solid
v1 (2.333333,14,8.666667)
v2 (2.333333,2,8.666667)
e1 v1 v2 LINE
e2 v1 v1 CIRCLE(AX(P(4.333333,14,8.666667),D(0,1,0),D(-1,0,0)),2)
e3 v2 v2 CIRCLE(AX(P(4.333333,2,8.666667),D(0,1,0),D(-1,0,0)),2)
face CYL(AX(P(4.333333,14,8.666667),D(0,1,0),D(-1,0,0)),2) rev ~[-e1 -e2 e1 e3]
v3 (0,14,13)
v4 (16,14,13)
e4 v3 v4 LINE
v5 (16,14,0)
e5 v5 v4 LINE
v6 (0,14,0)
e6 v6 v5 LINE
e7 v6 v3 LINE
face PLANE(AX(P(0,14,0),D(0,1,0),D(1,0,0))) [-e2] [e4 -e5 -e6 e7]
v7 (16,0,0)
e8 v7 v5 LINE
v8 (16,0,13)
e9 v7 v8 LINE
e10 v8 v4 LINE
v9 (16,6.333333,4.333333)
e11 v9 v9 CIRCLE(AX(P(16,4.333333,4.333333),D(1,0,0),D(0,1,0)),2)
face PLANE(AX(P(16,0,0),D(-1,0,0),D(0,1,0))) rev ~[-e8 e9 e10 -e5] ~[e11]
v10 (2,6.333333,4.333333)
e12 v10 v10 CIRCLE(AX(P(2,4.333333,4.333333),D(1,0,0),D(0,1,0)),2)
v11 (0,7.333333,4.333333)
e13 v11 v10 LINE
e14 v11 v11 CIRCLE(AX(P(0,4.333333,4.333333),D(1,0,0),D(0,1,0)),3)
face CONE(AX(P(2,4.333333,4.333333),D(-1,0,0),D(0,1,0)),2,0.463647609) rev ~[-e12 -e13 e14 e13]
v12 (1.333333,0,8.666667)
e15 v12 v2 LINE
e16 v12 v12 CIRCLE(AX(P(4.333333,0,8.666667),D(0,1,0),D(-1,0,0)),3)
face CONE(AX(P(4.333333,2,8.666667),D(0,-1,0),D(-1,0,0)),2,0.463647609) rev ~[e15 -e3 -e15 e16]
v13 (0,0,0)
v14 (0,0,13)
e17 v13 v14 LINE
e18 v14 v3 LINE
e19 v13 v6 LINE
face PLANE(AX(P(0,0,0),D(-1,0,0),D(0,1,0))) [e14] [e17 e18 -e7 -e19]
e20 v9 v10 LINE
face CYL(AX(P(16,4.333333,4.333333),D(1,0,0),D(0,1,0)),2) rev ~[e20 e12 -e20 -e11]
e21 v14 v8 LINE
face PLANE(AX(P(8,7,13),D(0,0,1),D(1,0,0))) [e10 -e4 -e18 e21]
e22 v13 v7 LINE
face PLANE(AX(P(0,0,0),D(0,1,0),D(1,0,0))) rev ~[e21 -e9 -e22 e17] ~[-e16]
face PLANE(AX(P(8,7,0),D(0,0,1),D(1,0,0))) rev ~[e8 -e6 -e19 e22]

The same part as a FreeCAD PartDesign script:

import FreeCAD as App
import Part
import Sketcher
from FreeCAD import Vector


def edges_at(feature, points):
    """Names of the edges that pass closest to the given points."""
    edges = feature.Shape.Edges
    near = lambda p: min(range(len(edges)), key=lambda i: edges[i].distToShape(Part.Vertex(*p))[0])
    return sorted({f"Edge{near(p) + 1}" for p in points})


def add_polygon(sketch, points):
    """Adds a closed chain of lines whose ends are joined by coincident constraints."""
    first, n = sketch.GeometryCount, len(points)
    for a, b in zip(points, points[1:] + points[:1]):
        sketch.addGeometry(Part.LineSegment(App.Vector(*a, 0), App.Vector(*b, 0)), False)
    for i in range(n):
        sketch.addConstraint(Sketcher.Constraint("Coincident", first + i, 2, first + (i + 1) % n, 1))

doc = App.newDocument("Part")
body = doc.addObject("PartDesign::Body", "Body")

sketch1 = doc.addObject("Sketcher::SketchObject", "Sketch")
body.addObject(sketch1)
sketch1.AttachmentSupport = (doc.XY_Plane, [""])
sketch1.MapMode = "FlatFace"
add_polygon(sketch1, [(0, 14), (0, 0), (16, 0), (16, 14)])
sketch1.addConstraint([
    Sketcher.Constraint("Vertical", 0),
    Sketcher.Constraint("Horizontal", 1),
    Sketcher.Constraint("Vertical", 2),
    Sketcher.Constraint("Horizontal", 3),
    Sketcher.Constraint("Coincident", 0, 2, -1, 1),
    Sketcher.Constraint("DistanceX", 1, 1, 1, 2, 16.0),
    Sketcher.Constraint("DistanceY", 0, 2, 0, 1, 14.0),
])
pad1 = doc.addObject("PartDesign::Pad", "Pad")
body.addObject(pad1)
pad1.Profile = sketch1
pad1.Length = 13

sketch2 = doc.addObject("Sketcher::SketchObject", "Sketch001")
body.addObject(sketch2)
sketch2.AttachmentSupport = (doc.YZ_Plane, [""])
sketch2.MapMode = "FlatFace"
sketch2.AttachmentOffset = App.Placement(Vector(0, 0, 16), App.Rotation())
sketch2.addGeometry(Part.Circle(Vector(4.3, 4.3, 0), Vector(0, 0, 1), 2), False)
sketch2.addConstraint([
    Sketcher.Constraint("Diameter", 0, 4.0),
    Sketcher.Constraint("DistanceX", -1, 1, 0, 3, 4.333333),
    Sketcher.Constraint("DistanceY", -1, 1, 0, 3, 4.333333),
])
pocket1 = doc.addObject("PartDesign::Pocket", "Pocket")
body.addObject(pocket1)
pocket1.Profile = sketch2
pocket1.Type = "ThroughAll"

sketch3 = doc.addObject("Sketcher::SketchObject", "Sketch002")
body.addObject(sketch3)
sketch3.AttachmentSupport = (doc.XZ_Plane, [""])
sketch3.MapMode = "FlatFace"
sketch3.AttachmentOffset = App.Placement(Vector(0, 0, -14), App.Rotation())
sketch3.addGeometry(Part.Circle(Vector(4.3, 8.7, 0), Vector(0, 0, 1), 2), False)
sketch3.addConstraint([
    Sketcher.Constraint("Diameter", 0, 4.0),
    Sketcher.Constraint("DistanceX", -1, 1, 0, 3, 4.333333),
    Sketcher.Constraint("DistanceY", -1, 1, 0, 3, 8.666667),
])
pocket2 = doc.addObject("PartDesign::Pocket", "Pocket001")
body.addObject(pocket2)
pocket2.Profile = sketch3
pocket2.Type = "ThroughAll"
pocket2.Reversed = True
doc.recompute()

chamfer = doc.addObject("PartDesign::Chamfer", "Chamfer")
body.addObject(chamfer)
chamfer.Base = (pocket2, edges_at(pocket2, [(6.333, 0, 8.667)]))
chamfer.ChamferType = "Two distances"
chamfer.Size = 1
chamfer.Size2 = 2
doc.recompute()

chamfer2 = doc.addObject("PartDesign::Chamfer", "Chamfer001")
body.addObject(chamfer2)
chamfer2.Base = (chamfer, edges_at(chamfer, [(0, 2.333, 4.333)]))
chamfer2.ChamferType = "Two distances"
chamfer2.Size = 1
chamfer2.Size2 = 2

doc.recompute()
